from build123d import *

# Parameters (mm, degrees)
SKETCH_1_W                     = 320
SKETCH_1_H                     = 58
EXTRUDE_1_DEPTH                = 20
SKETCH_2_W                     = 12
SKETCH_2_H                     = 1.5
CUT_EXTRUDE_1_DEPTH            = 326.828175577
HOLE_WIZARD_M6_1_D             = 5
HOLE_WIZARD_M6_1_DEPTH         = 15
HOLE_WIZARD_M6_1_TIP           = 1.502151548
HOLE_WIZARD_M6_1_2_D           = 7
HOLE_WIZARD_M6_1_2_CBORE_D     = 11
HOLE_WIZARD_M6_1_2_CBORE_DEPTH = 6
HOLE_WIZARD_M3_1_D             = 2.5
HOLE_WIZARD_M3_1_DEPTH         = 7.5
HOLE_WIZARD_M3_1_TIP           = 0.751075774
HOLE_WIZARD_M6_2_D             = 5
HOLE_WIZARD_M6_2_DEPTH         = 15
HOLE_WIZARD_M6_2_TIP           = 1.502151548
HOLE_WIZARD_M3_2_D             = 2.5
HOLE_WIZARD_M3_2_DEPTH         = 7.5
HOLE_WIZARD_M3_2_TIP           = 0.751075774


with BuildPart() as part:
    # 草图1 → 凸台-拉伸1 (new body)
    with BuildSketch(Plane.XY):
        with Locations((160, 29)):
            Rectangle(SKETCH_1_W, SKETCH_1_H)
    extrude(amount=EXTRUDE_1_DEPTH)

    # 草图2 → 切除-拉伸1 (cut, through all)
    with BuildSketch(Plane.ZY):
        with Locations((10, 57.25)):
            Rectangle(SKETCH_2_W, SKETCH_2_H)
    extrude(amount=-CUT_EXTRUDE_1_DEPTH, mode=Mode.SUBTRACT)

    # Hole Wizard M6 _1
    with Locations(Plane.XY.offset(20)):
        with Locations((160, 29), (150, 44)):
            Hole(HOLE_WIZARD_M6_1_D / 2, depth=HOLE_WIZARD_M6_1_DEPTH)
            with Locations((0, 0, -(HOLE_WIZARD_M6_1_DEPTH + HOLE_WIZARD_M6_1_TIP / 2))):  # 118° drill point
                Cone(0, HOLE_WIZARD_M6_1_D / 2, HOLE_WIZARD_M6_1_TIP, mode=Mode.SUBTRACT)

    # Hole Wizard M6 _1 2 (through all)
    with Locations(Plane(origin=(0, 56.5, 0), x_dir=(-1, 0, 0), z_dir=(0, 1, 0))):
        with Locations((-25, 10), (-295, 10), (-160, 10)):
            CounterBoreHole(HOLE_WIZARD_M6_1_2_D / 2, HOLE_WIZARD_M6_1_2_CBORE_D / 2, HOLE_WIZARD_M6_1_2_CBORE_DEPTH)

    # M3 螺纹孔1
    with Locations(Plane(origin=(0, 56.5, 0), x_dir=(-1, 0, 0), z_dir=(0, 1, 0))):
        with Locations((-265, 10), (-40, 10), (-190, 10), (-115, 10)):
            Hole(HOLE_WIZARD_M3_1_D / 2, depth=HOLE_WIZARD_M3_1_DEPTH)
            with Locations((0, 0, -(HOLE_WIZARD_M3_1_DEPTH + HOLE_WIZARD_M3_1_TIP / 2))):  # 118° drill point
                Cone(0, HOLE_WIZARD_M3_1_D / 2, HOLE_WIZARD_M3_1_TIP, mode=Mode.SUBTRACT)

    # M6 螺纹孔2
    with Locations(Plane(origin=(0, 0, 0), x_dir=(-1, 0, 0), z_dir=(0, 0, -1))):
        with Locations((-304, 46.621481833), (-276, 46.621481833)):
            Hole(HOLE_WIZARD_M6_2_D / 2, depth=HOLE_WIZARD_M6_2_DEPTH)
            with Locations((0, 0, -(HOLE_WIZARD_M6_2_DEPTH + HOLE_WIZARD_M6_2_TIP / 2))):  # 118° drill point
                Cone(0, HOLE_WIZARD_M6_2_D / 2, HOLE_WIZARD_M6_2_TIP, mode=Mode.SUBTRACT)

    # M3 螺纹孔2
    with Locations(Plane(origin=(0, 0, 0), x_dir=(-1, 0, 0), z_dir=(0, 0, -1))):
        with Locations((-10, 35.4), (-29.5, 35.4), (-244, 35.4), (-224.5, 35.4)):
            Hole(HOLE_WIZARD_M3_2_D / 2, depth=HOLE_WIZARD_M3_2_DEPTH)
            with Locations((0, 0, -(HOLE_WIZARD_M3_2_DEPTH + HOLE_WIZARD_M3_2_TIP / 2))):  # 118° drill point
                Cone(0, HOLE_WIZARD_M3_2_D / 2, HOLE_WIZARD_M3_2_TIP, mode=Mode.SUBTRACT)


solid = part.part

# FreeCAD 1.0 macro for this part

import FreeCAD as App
import Part
import Sketcher

V = App.Vector
Q = App.Units.Quantity

doc = App.newDocument("Part")
body = doc.addObject("PartDesign::Body", "Body")

sketch1 = doc.addObject("Sketcher::SketchObject", "Sketch")
body.addObject(sketch1)
sketch1.AttachmentSupport = (doc.XY_Plane, [""])
sketch1.MapMode = "FlatFace"
sketch1.addGeometry([
    Part.LineSegment(V(0, 58, 0), V(0, 0, 0)),
    Part.LineSegment(V(0, 0, 0), V(320, 0, 0)),
    Part.LineSegment(V(320, 0, 0), V(320, 58, 0)),
    Part.LineSegment(V(320, 58, 0), V(0, 58, 0)),
], False)
sketch1.addConstraint([
    Sketcher.Constraint("Coincident", 0, 2, 1, 1),
    Sketcher.Constraint("Coincident", 1, 2, 2, 1),
    Sketcher.Constraint("Coincident", 2, 2, 3, 1),
    Sketcher.Constraint("Coincident", 3, 2, 0, 1),
    Sketcher.Constraint("Vertical", 0),
    Sketcher.Constraint("Horizontal", 1),
    Sketcher.Constraint("Vertical", 2),
    Sketcher.Constraint("Horizontal", 3),
    Sketcher.Constraint("Coincident", 0, 2, -1, 1),
    Sketcher.Constraint("DistanceX", 1, 1, 1, 2, Q("320 mm")),
    Sketcher.Constraint("DistanceY", 0, 2, 0, 1, Q("58 mm")),
])
pad1 = doc.addObject("PartDesign::Pad", "Pad")
body.addObject(pad1)
pad1.Profile = sketch1
pad1.Length = 20

sketch2 = doc.addObject("Sketcher::SketchObject", "Sketch001")
body.addObject(sketch2)
sketch2.AttachmentSupport = (doc.YZ_Plane, [""])
sketch2.MapMode = "FlatFace"
sketch2.addGeometry([
    Part.LineSegment(V(58, 4, 0), V(56.5, 4, 0)),
    Part.LineSegment(V(56.5, 4, 0), V(56.5, 16, 0)),
    Part.LineSegment(V(56.5, 16, 0), V(58, 16, 0)),
    Part.LineSegment(V(58, 16, 0), V(58, 4, 0)),
], False)
sketch2.addConstraint([
    Sketcher.Constraint("Coincident", 0, 2, 1, 1),
    Sketcher.Constraint("Coincident", 1, 2, 2, 1),
    Sketcher.Constraint("Coincident", 2, 2, 3, 1),
    Sketcher.Constraint("Coincident", 3, 2, 0, 1),
    Sketcher.Constraint("Horizontal", 0),
    Sketcher.Constraint("Vertical", 1),
    Sketcher.Constraint("Horizontal", 2),
    Sketcher.Constraint("Vertical", 3),
    Sketcher.Constraint("DistanceY", 1, 1, 1, 2, Q("12 mm")),
    Sketcher.Constraint("DistanceX", 0, 2, 0, 1, Q("1.5 mm")),
    Sketcher.Constraint("DistanceY", -1, 1, 0, 2, Q("4 mm")),
    Sketcher.Constraint("DistanceX", -1, 1, 2, 2, Q("58 mm")),
])
pocket1 = doc.addObject("PartDesign::Pocket", "Pocket")
body.addObject(pocket1)
pocket1.Profile = sketch2
pocket1.Type = "ThroughAll"
pocket1.Reversed = True

sketch3 = doc.addObject("Sketcher::SketchObject", "Sketch002")
body.addObject(sketch3)
sketch3.AttachmentSupport = (doc.XY_Plane, [""])
sketch3.MapMode = "FlatFace"
sketch3.AttachmentOffset = App.Placement(V(0, 0, 20), App.Rotation())
sketch3.addGeometry([
    Part.Circle(V(160, 29, 0), V(0, 0, 1), 2.5),
    Part.Circle(V(150, 44, 0), V(0, 0, 1), 2.5),
], False)
sketch3.addConstraint([
    Sketcher.Constraint("Equal", 0, 1),
    Sketcher.Constraint("Diameter", 0, Q("5 mm")),
    Sketcher.Constraint("DistanceX", -1, 1, 0, 3, Q("160 mm")),
    Sketcher.Constraint("DistanceY", -1, 1, 0, 3, Q("29 mm")),
    Sketcher.Constraint("DistanceX", -1, 1, 1, 3, Q("150 mm")),
    Sketcher.Constraint("DistanceY", -1, 1, 1, 3, Q("44 mm")),
])
doc.recompute()
hole = doc.addObject("PartDesign::Hole", "Hole")
body.addObject(hole)
hole.Profile = sketch3
hole.ThreadType = "None"
hole.Diameter = 5
hole.DepthType = "Dimension"
hole.Depth = 15
hole.DrillPoint = "Angled"
hole.DrillPointAngle = 118

sketch4 = doc.addObject("Sketcher::SketchObject", "Sketch003")
body.addObject(sketch4)
sketch4.AttachmentSupport = (doc.XZ_Plane, [""])
sketch4.MapMode = "FlatFace"
sketch4.AttachmentOffset = App.Placement(V(0, 0, -56.5), App.Rotation())
sketch4.addGeometry([
    Part.Circle(V(25, 10, 0), V(0, 0, 1), 3.5),
    Part.Circle(V(295, 10, 0), V(0, 0, 1), 3.5),
    Part.Circle(V(160, 10, 0), V(0, 0, 1), 3.5),
], False)
sketch4.addConstraint([
    Sketcher.Constraint("Equal", 0, 1),
    Sketcher.Constraint("Equal", 1, 2),
    Sketcher.Constraint("Horizontal", 0, 3, 1, 3),
    Sketcher.Constraint("Horizontal", 1, 3, 2, 3),
    Sketcher.Constraint("Diameter", 0, Q("7 mm")),
    Sketcher.Constraint("DistanceX", -1, 1, 0, 3, Q("25 mm")),
    Sketcher.Constraint("DistanceY", -1, 1, 0, 3, Q("10 mm")),
    Sketcher.Constraint("DistanceX", -1, 1, 1, 3, Q("295 mm")),
    Sketcher.Constraint("DistanceX", -1, 1, 2, 3, Q("160 mm")),
])
doc.recompute()
hole2 = doc.addObject("PartDesign::Hole", "Hole001")
body.addObject(hole2)
hole2.Profile = sketch4
hole2.ThreadType = "None"
hole2.Diameter = 7
hole2.DepthType = "ThroughAll"
hole2.HoleCutType = "Counterbore"
hole2.HoleCutDiameter = 11
hole2.HoleCutDepth = 6
hole2.Reversed = True

sketch5 = doc.addObject("Sketcher::SketchObject", "Sketch004")
body.addObject(sketch5)
sketch5.AttachmentSupport = (doc.XZ_Plane, [""])
sketch5.MapMode = "FlatFace"
sketch5.AttachmentOffset = App.Placement(V(0, 0, -56.5), App.Rotation())
sketch5.addGeometry([
    Part.Circle(V(265, 10, 0), V(0, 0, 1), 1.25),
    Part.Circle(V(40, 10, 0), V(0, 0, 1), 1.25),
    Part.Circle(V(190, 10, 0), V(0, 0, 1), 1.25),
    Part.Circle(V(115, 10, 0), V(0, 0, 1), 1.25),
], False)
sketch5.addConstraint([
    Sketcher.Constraint("Equal", 0, 1),
    Sketcher.Constraint("Equal", 1, 2),
    Sketcher.Constraint("Equal", 2, 3),
    Sketcher.Constraint("Horizontal", 0, 3, 1, 3),
    Sketcher.Constraint("Horizontal", 1, 3, 2, 3),
    Sketcher.Constraint("Horizontal", 2, 3, 3, 3),
    Sketcher.Constraint("Diameter", 0, Q("2.5 mm")),
    Sketcher.Constraint("DistanceX", -1, 1, 0, 3, Q("265 mm")),
    Sketcher.Constraint("DistanceY", -1, 1, 0, 3, Q("10 mm")),
    Sketcher.Constraint("DistanceX", -1, 1, 1, 3, Q("40 mm")),
    Sketcher.Constraint("DistanceX", -1, 1, 2, 3, Q("190 mm")),
    Sketcher.Constraint("DistanceX", -1, 1, 3, 3, Q("115 mm")),
])
doc.recompute()
hole3 = doc.addObject("PartDesign::Hole", "Hole002")
body.addObject(hole3)
hole3.Profile = sketch5
hole3.ThreadType = "None"
hole3.Diameter = 2.5
hole3.DepthType = "Dimension"
hole3.Depth = 7.5
hole3.DrillPoint = "Angled"
hole3.DrillPointAngle = 118
hole3.Reversed = True

sketch6 = doc.addObject("Sketcher::SketchObject", "Sketch005")
body.addObject(sketch6)
sketch6.AttachmentSupport = (doc.XY_Plane, [""])
sketch6.MapMode = "FlatFace"
sketch6.addGeometry([
    Part.Circle(V(304, 46.621482, 0), V(0, 0, 1), 2.5),
    Part.Circle(V(276, 46.621482, 0), V(0, 0, 1), 2.5),
], False)
sketch6.addConstraint([
    Sketcher.Constraint("Equal", 0, 1),
    Sketcher.Constraint("Horizontal", 0, 3, 1, 3),
    Sketcher.Constraint("Diameter", 0, Q("5 mm")),
    Sketcher.Constraint("DistanceX", -1, 1, 0, 3, Q("304 mm")),
    Sketcher.Constraint("DistanceX", -1, 1, 1, 3, Q("276 mm")),
    Sketcher.Constraint("DistanceY", -1, 1, 0, 3, Q("46.621482 mm")),
])
doc.recompute()
hole4 = doc.addObject("PartDesign::Hole", "Hole003")
body.addObject(hole4)
hole4.Profile = sketch6
hole4.ThreadType = "None"
hole4.Diameter = 5
hole4.DepthType = "Dimension"
hole4.Depth = 15
hole4.DrillPoint = "Angled"
hole4.DrillPointAngle = 118
hole4.Reversed = True

sketch7 = doc.addObject("Sketcher::SketchObject", "Sketch006")
body.addObject(sketch7)
sketch7.AttachmentSupport = (doc.XY_Plane, [""])
sketch7.MapMode = "FlatFace"
sketch7.addGeometry([
    Part.Circle(V(10, 35.4, 0), V(0, 0, 1), 1.25),
    Part.Circle(V(29.5, 35.4, 0), V(0, 0, 1), 1.25),
    Part.Circle(V(244, 35.4, 0), V(0, 0, 1), 1.25),
    Part.Circle(V(224.5, 35.4, 0), V(0, 0, 1), 1.25),
], False)
sketch7.addConstraint([
    Sketcher.Constraint("Equal", 0, 1),
    Sketcher.Constraint("Equal", 1, 2),
    Sketcher.Constraint("Equal", 2, 3),
    Sketcher.Constraint("Horizontal", 0, 3, 1, 3),
    Sketcher.Constraint("Horizontal", 1, 3, 2, 3),
    Sketcher.Constraint("Horizontal", 2, 3, 3, 3),
    Sketcher.Constraint("Diameter", 0, Q("2.5 mm")),
    Sketcher.Constraint("DistanceX", -1, 1, 0, 3, Q("10 mm")),
    Sketcher.Constraint("DistanceX", -1, 1, 2, 3, Q("244 mm")),
    Sketcher.Constraint("DistanceX", 1, 3, 3, 3, Q("195 mm")),
    Sketcher.Constraint("DistanceY", -1, 1, 0, 3, Q("35.4 mm")),
    Sketcher.Constraint("DistanceX", -1, 1, 1, 3, Q("29.5 mm")),
])
doc.recompute()
hole5 = doc.addObject("PartDesign::Hole", "Hole004")
body.addObject(hole5)
hole5.Profile = sketch7
hole5.ThreadType = "None"
hole5.Diameter = 2.5
hole5.DepthType = "Dimension"
hole5.Depth = 7.5
hole5.DrillPoint = "Angled"
hole5.DrillPointAngle = 118
hole5.Reversed = True

doc.recompute()
